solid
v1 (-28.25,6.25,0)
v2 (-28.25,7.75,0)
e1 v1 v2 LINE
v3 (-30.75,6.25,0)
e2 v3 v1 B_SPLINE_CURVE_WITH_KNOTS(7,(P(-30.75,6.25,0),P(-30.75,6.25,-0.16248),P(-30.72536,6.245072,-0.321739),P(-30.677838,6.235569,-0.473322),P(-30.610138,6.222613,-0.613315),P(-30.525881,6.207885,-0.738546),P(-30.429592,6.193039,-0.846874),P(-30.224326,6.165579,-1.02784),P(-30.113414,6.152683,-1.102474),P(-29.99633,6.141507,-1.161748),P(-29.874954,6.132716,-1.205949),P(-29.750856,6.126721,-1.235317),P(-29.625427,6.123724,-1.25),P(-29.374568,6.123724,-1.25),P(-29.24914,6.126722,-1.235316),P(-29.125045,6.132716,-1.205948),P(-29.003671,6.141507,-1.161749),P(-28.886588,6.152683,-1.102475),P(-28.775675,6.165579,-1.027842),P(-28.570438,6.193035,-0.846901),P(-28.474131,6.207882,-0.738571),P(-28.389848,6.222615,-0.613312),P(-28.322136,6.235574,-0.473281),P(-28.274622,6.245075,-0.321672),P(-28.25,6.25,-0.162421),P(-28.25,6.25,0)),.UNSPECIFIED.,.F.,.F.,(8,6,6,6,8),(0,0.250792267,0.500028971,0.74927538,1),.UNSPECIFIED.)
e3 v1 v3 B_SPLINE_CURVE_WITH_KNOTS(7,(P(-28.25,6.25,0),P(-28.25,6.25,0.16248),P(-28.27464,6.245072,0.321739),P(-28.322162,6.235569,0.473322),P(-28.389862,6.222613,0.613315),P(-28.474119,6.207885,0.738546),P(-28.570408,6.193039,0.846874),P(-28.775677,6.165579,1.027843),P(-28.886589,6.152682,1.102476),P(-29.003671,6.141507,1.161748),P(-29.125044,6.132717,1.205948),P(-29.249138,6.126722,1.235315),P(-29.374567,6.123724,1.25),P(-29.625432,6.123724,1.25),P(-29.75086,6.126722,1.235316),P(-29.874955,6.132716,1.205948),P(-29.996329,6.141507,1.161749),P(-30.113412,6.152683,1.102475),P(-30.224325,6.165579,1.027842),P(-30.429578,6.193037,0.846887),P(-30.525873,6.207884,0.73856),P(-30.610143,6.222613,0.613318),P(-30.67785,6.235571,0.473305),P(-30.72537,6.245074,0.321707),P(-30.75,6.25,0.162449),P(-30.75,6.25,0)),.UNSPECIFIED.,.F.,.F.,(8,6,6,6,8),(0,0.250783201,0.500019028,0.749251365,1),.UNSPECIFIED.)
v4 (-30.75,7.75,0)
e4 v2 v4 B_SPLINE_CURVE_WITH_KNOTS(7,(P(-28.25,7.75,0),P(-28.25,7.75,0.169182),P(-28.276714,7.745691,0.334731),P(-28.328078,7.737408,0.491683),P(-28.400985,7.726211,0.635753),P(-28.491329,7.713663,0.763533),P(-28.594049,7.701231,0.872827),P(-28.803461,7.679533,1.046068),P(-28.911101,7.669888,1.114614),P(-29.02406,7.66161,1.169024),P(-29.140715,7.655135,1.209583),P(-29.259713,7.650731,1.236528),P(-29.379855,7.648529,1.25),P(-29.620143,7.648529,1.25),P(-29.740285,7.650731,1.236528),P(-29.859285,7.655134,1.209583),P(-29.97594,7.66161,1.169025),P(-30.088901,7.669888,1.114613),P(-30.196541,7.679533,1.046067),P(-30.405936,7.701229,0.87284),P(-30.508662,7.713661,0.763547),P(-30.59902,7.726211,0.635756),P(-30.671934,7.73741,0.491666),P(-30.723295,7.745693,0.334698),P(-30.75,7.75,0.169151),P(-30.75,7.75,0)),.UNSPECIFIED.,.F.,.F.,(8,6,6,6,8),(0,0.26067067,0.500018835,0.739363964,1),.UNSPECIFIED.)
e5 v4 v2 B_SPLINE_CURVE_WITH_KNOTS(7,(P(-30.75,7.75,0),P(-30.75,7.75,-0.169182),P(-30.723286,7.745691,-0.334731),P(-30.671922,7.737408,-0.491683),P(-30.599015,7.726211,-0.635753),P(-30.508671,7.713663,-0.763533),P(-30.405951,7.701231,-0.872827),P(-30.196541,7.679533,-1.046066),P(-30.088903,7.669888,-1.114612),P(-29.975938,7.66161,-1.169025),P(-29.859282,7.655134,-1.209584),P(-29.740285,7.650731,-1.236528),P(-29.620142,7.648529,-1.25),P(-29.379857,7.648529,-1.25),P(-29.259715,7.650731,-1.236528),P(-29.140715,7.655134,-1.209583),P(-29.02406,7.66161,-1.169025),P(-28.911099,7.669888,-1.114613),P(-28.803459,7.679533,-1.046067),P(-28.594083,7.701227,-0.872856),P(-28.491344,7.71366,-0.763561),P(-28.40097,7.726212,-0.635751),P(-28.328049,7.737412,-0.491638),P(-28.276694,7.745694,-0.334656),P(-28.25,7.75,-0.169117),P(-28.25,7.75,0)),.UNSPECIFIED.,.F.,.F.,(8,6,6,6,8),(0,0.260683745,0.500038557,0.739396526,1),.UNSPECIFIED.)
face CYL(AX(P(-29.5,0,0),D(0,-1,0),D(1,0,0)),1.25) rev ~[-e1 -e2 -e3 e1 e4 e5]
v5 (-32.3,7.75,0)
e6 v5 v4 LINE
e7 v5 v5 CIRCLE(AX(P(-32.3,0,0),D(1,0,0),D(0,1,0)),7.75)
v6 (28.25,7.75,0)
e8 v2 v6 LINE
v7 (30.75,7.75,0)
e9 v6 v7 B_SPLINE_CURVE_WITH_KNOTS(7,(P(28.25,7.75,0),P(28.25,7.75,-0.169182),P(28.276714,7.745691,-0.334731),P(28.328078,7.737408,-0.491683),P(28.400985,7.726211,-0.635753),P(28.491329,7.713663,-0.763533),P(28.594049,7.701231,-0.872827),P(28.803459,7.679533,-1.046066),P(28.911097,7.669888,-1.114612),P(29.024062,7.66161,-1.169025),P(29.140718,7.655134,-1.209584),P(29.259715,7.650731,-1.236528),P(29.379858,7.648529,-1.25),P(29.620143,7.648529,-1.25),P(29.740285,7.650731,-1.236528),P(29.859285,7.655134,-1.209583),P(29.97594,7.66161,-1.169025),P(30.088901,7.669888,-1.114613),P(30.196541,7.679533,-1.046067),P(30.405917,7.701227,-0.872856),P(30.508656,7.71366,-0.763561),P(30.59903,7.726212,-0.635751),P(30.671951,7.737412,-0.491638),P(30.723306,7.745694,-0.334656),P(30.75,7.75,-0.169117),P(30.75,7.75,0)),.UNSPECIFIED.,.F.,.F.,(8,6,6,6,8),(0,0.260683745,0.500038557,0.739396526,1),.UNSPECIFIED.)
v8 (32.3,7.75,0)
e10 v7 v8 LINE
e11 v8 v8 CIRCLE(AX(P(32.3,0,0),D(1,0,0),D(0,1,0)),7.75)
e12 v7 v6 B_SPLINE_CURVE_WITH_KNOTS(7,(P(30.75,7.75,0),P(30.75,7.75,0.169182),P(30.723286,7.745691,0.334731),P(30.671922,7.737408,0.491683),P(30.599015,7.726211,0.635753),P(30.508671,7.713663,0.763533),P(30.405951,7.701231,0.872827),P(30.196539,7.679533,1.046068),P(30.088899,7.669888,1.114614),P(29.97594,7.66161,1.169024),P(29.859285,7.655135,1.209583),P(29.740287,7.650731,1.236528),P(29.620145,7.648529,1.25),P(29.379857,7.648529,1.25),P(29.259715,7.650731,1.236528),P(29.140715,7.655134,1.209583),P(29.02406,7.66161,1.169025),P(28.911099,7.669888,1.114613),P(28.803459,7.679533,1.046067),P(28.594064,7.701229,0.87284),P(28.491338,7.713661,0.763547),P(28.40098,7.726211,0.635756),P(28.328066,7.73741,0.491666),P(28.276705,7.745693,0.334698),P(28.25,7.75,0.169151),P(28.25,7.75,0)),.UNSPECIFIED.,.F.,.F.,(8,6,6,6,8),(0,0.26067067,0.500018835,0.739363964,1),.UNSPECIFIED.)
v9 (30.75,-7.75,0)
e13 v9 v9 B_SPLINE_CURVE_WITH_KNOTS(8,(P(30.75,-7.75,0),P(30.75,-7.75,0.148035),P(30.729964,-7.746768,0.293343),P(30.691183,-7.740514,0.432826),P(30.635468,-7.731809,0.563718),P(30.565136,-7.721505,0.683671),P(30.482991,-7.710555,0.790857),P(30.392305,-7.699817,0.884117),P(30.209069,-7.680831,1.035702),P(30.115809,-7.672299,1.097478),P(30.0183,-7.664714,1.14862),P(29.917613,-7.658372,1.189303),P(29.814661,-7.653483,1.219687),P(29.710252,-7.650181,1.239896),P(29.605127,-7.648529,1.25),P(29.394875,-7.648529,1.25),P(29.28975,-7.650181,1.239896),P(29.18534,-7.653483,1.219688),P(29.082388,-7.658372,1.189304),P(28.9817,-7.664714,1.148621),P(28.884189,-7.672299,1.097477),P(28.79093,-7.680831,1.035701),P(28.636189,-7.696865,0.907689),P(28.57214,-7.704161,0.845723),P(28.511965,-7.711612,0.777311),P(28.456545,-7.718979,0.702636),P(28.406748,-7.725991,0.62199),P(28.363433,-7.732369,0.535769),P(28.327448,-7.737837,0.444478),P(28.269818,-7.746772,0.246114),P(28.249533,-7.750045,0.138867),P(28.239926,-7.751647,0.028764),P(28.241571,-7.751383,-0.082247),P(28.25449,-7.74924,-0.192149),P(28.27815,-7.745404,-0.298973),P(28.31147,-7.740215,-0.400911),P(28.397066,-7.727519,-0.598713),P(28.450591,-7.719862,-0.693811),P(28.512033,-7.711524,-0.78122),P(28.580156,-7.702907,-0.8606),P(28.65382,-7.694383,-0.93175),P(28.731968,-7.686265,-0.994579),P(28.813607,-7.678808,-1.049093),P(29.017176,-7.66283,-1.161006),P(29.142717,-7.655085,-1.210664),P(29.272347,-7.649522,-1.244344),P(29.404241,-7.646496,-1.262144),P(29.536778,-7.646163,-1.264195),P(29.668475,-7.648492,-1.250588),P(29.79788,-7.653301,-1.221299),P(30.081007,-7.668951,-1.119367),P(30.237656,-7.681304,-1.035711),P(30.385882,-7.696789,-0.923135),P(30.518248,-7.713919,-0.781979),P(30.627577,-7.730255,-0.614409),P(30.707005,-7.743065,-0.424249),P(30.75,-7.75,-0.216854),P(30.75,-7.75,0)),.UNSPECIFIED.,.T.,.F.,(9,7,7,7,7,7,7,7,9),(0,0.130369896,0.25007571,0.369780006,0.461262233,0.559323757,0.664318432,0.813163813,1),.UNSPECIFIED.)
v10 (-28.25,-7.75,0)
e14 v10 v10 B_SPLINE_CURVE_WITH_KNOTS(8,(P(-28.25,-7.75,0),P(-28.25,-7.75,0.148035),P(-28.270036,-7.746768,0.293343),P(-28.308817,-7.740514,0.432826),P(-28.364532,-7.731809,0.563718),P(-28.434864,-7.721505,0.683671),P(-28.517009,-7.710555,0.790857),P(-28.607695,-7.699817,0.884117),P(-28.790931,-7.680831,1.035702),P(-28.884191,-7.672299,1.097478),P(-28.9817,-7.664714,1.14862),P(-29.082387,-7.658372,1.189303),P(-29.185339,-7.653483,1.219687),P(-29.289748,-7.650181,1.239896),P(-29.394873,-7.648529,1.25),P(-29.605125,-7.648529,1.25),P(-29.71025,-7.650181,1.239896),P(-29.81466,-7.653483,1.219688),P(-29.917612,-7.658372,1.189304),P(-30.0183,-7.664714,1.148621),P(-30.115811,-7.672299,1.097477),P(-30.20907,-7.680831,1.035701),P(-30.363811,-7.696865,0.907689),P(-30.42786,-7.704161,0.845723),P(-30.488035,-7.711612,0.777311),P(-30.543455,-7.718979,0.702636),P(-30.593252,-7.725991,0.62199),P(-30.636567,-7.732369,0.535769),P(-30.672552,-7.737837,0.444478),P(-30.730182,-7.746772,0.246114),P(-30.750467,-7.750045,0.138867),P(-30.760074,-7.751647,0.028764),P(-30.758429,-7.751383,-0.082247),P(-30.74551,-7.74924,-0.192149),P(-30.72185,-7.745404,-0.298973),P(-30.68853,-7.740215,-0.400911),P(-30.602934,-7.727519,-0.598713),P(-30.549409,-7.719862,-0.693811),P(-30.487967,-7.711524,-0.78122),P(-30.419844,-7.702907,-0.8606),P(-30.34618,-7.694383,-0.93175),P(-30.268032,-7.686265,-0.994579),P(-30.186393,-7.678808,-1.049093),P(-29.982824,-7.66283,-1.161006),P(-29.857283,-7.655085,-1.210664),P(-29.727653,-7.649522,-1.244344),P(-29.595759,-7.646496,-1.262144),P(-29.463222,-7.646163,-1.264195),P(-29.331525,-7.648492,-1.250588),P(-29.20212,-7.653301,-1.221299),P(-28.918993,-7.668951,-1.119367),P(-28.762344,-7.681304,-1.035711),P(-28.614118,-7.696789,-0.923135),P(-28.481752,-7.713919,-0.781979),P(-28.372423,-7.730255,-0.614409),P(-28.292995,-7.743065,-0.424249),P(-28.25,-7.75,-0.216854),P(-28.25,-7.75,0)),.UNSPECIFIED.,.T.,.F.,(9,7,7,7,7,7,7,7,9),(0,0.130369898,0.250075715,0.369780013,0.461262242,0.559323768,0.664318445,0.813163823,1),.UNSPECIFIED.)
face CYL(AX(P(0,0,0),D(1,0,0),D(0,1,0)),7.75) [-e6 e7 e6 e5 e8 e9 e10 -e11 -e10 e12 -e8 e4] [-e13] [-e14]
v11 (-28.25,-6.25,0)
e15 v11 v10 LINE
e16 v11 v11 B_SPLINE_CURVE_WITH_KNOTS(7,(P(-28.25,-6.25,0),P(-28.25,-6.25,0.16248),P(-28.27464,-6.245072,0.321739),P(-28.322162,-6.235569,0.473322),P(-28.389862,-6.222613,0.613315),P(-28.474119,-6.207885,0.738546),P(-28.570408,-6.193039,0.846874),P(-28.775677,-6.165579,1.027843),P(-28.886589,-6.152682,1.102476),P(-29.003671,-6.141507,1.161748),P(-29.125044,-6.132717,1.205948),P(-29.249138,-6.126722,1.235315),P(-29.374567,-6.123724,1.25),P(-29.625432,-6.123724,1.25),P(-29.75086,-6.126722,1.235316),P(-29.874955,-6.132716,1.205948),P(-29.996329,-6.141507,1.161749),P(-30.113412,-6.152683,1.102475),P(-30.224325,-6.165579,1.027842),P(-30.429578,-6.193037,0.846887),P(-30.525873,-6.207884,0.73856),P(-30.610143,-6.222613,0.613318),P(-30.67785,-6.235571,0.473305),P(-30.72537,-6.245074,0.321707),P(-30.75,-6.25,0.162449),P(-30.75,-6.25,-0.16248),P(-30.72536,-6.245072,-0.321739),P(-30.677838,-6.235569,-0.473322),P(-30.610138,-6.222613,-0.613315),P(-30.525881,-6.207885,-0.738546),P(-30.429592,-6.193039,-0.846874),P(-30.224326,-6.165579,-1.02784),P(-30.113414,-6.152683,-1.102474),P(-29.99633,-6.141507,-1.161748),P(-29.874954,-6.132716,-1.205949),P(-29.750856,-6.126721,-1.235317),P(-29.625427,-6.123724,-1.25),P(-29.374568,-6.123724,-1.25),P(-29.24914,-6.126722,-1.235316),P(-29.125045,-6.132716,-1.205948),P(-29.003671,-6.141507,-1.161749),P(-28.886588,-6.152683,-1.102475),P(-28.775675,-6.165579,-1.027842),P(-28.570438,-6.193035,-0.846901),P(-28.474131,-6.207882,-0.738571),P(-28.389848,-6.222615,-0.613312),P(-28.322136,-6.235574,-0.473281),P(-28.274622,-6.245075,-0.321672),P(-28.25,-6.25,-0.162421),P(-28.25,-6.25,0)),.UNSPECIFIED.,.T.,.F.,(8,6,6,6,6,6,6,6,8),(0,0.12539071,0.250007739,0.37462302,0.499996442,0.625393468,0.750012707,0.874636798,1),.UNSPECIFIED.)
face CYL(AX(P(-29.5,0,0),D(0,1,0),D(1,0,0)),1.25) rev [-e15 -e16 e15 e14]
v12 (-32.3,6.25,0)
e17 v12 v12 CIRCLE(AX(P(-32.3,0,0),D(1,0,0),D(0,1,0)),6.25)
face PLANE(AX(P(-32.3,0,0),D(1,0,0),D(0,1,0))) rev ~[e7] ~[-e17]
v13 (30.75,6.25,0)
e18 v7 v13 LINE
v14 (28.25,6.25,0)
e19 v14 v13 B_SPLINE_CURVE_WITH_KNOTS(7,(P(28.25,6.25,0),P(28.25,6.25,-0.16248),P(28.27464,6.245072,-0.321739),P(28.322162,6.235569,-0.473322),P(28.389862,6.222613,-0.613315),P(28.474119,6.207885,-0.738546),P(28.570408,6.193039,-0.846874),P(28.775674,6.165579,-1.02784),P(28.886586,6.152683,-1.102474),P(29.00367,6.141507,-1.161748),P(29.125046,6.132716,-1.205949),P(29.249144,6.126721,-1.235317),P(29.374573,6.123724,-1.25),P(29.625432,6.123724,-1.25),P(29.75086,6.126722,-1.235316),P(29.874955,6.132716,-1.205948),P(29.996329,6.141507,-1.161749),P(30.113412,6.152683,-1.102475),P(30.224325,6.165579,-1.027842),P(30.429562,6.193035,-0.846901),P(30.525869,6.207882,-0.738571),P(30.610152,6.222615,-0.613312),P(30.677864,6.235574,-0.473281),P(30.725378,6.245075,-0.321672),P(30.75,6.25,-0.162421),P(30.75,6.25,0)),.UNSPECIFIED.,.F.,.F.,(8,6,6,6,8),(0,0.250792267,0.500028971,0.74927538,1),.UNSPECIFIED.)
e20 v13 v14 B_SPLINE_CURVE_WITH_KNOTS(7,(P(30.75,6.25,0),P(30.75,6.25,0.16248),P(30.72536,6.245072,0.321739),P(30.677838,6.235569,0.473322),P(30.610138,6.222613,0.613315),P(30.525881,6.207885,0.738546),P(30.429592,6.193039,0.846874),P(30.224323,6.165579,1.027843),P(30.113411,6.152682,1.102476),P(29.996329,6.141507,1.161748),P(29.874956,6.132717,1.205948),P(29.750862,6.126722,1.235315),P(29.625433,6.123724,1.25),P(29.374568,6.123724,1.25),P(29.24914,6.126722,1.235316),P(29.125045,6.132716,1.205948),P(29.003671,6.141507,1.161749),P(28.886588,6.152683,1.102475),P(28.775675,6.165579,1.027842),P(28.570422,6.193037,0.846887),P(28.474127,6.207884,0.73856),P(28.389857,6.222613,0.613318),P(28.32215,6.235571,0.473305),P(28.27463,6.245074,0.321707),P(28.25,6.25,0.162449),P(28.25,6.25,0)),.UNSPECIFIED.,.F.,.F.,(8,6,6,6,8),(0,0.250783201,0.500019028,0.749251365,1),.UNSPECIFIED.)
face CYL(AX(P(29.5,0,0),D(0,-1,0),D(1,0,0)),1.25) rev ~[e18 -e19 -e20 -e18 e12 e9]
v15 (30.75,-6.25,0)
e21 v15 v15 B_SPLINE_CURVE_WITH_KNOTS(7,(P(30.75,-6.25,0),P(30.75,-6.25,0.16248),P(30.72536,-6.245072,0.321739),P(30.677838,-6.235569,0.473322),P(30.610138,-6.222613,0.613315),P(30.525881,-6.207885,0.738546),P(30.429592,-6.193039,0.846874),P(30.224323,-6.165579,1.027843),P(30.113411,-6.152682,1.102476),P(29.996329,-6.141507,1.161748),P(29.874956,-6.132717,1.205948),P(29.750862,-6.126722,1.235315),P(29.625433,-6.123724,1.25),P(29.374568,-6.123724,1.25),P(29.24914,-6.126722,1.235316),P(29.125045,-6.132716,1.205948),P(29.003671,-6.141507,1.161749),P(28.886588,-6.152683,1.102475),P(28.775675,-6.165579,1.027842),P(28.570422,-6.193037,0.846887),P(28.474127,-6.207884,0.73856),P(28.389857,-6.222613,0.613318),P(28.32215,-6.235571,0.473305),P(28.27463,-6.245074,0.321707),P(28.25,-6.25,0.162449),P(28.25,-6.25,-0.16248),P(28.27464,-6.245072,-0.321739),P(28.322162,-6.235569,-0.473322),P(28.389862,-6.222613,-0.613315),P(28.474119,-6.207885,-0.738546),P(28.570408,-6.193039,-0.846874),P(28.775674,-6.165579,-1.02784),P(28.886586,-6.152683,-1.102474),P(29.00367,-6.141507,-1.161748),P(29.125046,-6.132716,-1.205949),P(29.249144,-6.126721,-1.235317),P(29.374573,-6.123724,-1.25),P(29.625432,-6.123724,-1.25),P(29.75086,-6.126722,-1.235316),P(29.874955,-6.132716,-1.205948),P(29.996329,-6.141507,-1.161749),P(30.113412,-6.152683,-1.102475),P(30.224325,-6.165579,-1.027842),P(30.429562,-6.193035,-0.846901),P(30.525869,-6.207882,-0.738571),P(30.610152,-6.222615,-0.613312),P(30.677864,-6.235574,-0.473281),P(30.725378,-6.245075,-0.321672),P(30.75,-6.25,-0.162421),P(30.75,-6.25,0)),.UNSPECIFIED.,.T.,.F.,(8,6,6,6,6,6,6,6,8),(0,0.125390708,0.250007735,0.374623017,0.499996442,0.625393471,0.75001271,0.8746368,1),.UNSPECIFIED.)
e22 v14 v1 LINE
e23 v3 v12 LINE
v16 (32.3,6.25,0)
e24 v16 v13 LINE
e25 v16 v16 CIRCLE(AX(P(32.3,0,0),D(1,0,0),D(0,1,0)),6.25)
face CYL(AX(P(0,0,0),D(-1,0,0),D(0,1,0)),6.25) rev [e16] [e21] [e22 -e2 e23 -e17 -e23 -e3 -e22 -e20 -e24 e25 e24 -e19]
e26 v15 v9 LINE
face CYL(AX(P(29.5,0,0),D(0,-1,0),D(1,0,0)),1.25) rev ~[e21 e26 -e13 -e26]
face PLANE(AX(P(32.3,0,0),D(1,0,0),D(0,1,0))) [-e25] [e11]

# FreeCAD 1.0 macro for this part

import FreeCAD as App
import Part
import Sketcher

doc = App.newDocument("Part")
body = doc.addObject("PartDesign::Body", "Body")

sketch1 = body.newObject("Sketcher::SketchObject", "Sketch")
sketch1.AttachmentSupport = (doc.getObject("YZ_Plane"), [""])
sketch1.MapMode = "FlatFace"
sketch1.addGeometry([
    Part.Circle(App.Vector(0, 0, 0), App.Vector(0, 0, 1), 7.75),
    Part.Circle(App.Vector(0, 0, 0), App.Vector(0, 0, 1), 6.25),
], False)
sketch1.addConstraint([
    Sketcher.Constraint("Coincident", 0, 3, -1, 1),
    Sketcher.Constraint("Coincident", 1, 3, -1, 1),
    Sketcher.Constraint("Diameter", 0, 15.5),
    Sketcher.Constraint("Diameter", 1, 12.5),
])
pad1 = body.newObject("PartDesign::Pad", "Pad")
pad1.Profile = sketch1
pad1.Length = 64.6
pad1.Midplane = True

sketch2 = body.newObject("Sketcher::SketchObject", "Sketch001")
sketch2.AttachmentSupport = (doc.getObject("XZ_Plane"), [""])
sketch2.MapMode = "FlatFace"
sketch2.addGeometry([
    Part.Circle(App.Vector(-29.5, 0, 0), App.Vector(0, 0, 1), 1.25),
    Part.Circle(App.Vector(29.5, 0, 0), App.Vector(0, 0, 1), 1.25),
], False)
sketch2.addConstraint([
    Sketcher.Constraint("Equal", 0, 1),
    Sketcher.Constraint("Symmetric", 0, 3, 1, 3, -1, 1),
    Sketcher.Constraint("PointOnObject", 0, 3, -1),
    Sketcher.Constraint("Diameter", 0, 2.5),
    Sketcher.Constraint("DistanceX", 0, 3, 1, 3, 59.0),
])
pocket1 = body.newObject("PartDesign::Pocket", "Pocket")
pocket1.Profile = sketch2
pocket1.Length = 25
pocket1.Midplane = True

doc.recompute()
